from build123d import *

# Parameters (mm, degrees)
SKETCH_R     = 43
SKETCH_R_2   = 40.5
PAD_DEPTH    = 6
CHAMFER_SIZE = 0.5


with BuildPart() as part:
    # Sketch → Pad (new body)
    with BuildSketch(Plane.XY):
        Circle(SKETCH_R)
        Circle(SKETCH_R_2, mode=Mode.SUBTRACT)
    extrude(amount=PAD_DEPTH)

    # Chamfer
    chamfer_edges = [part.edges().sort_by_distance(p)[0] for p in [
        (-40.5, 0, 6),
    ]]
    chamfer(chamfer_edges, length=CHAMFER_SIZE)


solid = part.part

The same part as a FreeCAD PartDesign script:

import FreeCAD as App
import Part
import Sketcher

V = App.Vector


def edges_at(feature, points):
    """Names of the edges that pass closest to the given points."""
    edges = feature.Shape.Edges
    near = lambda p: min(range(len(edges)), key=lambda i: edges[i].distToShape(Part.Vertex(*p))[0])
    return sorted({f"Edge{near(p) + 1}" for p in points})

doc = App.newDocument("Part")
body = doc.addObject("PartDesign::Body", "Body")

# Sketch on XY plane
sketch1 = doc.addObject("Sketcher::SketchObject", "Sketch")
body.addObject(sketch1)
sketch1.AttachmentSupport = (doc.XY_Plane, [""])
sketch1.MapMode = "FlatFace"
sketch1.addGeometry([
    Part.Circle(V(0, 0, 0), V(0, 0, 1), 43),
    Part.Circle(V(0, 0, 0), V(0, 0, 1), 40),
], False)
sketch1.addConstraint([
    Sketcher.Constraint("Coincident", 0, 3, -1, 1),
    Sketcher.Constraint("Coincident", 1, 3, -1, 1),
    Sketcher.Constraint("Diameter", 0, 86.0),
    Sketcher.Constraint("Diameter", 1, 81.0),
])
pad1 = doc.addObject("PartDesign::Pad", "Pad")
body.addObject(pad1)
pad1.Profile = sketch1
pad1.Length = 6
doc.recompute()

chamfer = doc.addObject("PartDesign::Chamfer", "Chamfer")
body.addObject(chamfer)
chamfer.Base = (pad1, edges_at(pad1, [(-40.5, 0, 6)]))
chamfer.Size = 0.5

doc.recompute()
